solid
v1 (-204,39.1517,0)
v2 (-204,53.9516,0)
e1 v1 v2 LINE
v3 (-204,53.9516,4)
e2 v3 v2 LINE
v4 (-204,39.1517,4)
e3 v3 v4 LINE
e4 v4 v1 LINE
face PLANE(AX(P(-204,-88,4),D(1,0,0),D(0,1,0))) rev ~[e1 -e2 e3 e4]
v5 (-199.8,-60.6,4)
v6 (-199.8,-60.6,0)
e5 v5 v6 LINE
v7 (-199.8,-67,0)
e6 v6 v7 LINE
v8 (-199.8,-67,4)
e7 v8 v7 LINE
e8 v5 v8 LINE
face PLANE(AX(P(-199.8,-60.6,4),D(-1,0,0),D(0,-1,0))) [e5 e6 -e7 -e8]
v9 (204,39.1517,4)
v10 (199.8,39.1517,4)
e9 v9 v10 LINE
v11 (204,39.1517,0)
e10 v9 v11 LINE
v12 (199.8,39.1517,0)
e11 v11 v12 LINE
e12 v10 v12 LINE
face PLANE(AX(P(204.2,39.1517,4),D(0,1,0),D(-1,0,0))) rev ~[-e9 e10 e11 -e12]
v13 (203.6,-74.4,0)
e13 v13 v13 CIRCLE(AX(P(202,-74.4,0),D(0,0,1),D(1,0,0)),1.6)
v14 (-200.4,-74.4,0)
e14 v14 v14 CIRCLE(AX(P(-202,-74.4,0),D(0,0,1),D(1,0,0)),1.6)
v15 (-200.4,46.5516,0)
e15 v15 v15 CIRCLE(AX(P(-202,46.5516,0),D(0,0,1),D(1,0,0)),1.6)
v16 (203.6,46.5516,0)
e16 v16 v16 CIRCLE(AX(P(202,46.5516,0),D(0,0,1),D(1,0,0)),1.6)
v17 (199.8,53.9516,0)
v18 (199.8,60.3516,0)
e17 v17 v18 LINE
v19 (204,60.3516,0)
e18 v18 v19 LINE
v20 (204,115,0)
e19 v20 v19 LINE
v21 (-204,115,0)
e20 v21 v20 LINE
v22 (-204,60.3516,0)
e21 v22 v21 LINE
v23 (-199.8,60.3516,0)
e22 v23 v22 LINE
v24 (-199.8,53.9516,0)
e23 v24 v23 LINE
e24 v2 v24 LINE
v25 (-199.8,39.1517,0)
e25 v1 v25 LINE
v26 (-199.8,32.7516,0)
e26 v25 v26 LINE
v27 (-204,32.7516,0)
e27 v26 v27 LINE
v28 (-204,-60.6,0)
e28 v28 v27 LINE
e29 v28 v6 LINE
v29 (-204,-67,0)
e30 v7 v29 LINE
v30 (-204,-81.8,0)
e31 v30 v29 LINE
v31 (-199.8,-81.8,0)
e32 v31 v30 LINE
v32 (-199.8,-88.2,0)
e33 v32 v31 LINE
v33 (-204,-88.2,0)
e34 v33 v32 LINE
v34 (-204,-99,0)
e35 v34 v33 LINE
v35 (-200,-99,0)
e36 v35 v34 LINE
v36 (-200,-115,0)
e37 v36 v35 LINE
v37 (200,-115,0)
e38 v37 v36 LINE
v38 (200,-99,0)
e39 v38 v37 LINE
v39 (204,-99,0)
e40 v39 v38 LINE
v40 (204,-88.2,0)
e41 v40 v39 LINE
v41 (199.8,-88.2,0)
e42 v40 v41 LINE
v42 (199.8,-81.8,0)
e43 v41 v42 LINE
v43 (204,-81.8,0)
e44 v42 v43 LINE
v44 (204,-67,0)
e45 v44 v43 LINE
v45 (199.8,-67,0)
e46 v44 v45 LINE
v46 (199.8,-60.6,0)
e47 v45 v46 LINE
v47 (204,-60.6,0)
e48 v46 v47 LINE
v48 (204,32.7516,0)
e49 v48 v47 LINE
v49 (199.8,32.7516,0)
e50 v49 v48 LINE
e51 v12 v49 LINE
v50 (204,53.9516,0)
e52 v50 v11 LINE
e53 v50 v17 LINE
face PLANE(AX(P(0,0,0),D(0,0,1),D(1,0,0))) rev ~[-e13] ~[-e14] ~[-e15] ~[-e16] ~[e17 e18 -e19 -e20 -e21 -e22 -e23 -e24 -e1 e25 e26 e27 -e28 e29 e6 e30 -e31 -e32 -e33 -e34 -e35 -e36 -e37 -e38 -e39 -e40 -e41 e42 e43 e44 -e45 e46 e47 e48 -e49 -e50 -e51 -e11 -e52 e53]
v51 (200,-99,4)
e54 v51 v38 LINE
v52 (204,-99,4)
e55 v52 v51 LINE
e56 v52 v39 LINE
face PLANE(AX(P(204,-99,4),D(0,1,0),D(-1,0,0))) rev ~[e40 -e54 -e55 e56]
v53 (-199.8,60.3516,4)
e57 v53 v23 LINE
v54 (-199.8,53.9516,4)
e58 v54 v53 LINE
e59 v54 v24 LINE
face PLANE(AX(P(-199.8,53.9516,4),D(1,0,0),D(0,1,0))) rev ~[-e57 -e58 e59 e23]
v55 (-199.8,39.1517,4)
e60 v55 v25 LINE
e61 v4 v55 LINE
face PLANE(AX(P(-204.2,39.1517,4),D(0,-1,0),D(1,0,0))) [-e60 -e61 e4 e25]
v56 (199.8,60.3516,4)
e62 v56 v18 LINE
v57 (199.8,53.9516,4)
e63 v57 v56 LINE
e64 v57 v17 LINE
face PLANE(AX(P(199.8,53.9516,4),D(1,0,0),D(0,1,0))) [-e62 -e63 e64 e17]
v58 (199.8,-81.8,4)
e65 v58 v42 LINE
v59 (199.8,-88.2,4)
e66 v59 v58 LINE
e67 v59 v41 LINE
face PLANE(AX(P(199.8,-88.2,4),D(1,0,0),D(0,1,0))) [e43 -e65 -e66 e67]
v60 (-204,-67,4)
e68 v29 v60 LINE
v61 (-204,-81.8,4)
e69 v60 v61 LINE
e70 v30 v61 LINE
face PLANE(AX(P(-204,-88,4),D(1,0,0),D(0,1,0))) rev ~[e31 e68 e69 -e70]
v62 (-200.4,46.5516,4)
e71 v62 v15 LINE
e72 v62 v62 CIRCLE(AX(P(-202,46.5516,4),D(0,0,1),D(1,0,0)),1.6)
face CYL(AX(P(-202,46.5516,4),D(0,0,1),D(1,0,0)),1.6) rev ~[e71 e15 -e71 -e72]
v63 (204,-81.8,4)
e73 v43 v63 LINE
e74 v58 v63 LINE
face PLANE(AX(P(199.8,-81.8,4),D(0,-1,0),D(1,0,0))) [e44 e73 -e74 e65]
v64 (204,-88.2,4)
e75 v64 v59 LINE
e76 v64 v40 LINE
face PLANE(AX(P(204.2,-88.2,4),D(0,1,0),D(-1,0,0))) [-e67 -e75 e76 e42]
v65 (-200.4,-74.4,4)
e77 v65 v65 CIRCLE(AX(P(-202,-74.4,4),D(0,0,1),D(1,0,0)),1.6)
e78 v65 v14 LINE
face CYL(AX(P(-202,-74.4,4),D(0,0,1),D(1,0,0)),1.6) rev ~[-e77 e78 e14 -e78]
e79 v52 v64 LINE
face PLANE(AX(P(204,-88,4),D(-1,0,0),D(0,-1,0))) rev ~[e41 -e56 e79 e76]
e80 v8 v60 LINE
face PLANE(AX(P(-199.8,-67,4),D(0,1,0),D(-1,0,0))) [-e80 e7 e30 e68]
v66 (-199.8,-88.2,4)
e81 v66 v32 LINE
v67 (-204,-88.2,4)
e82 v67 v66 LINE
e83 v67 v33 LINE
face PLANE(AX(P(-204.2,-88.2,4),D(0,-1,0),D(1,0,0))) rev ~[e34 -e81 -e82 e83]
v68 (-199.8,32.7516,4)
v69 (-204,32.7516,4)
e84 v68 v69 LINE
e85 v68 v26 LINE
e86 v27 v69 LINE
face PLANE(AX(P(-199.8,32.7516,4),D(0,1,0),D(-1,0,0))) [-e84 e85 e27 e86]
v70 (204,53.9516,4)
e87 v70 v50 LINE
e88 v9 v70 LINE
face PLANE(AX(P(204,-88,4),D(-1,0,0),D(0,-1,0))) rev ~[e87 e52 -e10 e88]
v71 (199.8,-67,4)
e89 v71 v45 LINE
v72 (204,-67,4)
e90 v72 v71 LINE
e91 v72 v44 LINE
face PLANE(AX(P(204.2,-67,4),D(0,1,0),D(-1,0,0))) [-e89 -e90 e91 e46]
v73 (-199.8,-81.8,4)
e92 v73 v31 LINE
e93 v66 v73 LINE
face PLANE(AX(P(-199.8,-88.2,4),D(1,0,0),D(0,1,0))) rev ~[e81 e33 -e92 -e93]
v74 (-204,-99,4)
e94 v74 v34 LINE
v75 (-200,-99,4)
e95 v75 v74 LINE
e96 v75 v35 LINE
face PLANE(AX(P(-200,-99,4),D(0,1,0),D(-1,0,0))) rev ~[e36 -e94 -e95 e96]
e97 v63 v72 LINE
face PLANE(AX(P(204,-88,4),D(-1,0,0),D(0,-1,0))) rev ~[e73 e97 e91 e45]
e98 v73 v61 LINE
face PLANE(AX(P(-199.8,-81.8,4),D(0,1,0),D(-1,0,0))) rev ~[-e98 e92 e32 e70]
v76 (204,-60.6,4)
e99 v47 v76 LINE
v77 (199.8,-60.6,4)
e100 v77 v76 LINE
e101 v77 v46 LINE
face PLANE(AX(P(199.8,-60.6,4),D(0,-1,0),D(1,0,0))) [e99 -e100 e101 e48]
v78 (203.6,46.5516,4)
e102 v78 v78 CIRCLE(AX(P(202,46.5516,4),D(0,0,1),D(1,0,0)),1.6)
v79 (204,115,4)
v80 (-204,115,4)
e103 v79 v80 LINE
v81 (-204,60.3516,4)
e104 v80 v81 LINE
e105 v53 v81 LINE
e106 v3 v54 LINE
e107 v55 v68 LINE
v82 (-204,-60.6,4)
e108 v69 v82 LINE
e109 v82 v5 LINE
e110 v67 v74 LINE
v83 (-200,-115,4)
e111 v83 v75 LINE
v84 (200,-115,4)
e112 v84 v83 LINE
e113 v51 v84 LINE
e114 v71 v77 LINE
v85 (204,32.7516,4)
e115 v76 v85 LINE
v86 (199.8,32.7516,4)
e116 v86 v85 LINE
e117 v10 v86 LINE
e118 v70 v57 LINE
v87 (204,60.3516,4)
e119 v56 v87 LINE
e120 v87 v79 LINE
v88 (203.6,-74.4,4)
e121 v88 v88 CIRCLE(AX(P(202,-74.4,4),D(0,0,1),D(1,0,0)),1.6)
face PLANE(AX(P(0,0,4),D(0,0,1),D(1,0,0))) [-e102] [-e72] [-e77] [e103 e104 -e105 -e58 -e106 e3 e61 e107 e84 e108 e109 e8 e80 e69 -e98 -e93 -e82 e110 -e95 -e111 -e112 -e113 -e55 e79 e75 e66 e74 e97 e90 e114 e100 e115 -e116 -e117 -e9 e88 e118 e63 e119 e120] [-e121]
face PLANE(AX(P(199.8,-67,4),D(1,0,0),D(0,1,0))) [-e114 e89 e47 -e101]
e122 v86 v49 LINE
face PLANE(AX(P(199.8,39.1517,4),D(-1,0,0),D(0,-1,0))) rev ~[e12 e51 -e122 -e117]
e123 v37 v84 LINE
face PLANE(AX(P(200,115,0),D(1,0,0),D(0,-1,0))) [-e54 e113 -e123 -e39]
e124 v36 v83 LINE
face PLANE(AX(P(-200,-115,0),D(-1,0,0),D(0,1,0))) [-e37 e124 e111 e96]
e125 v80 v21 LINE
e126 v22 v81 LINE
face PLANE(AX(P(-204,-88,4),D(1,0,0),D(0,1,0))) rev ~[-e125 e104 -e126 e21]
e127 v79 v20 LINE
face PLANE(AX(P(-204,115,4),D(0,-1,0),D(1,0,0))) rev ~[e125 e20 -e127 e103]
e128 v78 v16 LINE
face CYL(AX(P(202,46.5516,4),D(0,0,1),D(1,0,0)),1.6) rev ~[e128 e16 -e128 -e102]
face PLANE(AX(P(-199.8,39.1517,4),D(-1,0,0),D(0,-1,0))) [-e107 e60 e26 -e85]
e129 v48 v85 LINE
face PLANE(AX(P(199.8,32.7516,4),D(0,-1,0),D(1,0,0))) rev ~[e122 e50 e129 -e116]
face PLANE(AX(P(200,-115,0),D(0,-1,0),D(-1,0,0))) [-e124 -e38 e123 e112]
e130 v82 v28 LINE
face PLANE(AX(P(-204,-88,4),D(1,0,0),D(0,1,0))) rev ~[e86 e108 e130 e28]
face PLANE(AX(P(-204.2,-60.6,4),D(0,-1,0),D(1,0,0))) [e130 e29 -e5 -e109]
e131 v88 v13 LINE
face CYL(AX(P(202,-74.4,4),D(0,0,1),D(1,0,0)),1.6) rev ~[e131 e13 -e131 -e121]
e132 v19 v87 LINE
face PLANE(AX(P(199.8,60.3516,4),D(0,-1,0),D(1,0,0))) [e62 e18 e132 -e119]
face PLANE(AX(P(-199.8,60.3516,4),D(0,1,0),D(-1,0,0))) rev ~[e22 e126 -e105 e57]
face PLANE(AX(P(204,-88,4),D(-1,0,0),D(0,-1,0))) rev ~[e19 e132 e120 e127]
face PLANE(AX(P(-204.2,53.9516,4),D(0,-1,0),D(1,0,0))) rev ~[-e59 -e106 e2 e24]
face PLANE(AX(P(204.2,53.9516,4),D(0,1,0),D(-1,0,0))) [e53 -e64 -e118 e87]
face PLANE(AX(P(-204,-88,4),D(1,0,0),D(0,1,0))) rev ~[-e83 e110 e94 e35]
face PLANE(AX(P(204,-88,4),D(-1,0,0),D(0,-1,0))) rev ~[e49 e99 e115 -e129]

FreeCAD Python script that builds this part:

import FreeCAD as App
import Part
import Sketcher
from FreeCAD import Vector

doc = App.newDocument("Part")
params = doc.addObject("Spreadsheet::Sheet", "Params")
for row, (alias, value) in enumerate([
    ("sketch1_width", "400 mm"),
    ("sketch1_height", "230 mm"),
    ("pad1_length", "4 mm"),
    ("sketch2_width", "4 mm"),
    ("sketch2_width2", "408 mm"),
    ("sketch2_height", "11 mm"),
    ("sketch2_height2", "214 mm"),
    ("pad2_length", "4 mm"),
    ("sketch3_diameter", "3.2 mm"),
    ("sketch3_width", "4.4 mm"),
    ("sketch3_height", "6.4 mm"),
    ("pocket1_length", "10 mm"),
], start=1):
    params.set(f"A{row}", alias)
    params.set(f"B{row}", "=" + value)
    params.setAlias(f"B{row}", alias)

body = doc.addObject("PartDesign::Body", "Body")

# Sketch on XY plane
sketch1 = body.newObject("Sketcher::SketchObject", "Sketch")
sketch1.AttachmentSupport = (doc.getObject("XY_Plane"), [""])
sketch1.MapMode = "FlatFace"
sketch1.addGeometry(Part.LineSegment(Vector(-200, -115, 0), Vector(200, -115, 0)), False)
sketch1.addGeometry(Part.LineSegment(Vector(200, -115, 0), Vector(200, 115, 0)), False)
sketch1.addGeometry(Part.LineSegment(Vector(200, 115, 0), Vector(-200, 115, 0)), False)
sketch1.addGeometry(Part.LineSegment(Vector(-200, 115, 0), Vector(-200, -115, 0)), False)
sketch1.addConstraint(Sketcher.Constraint("Coincident", 0, 2, 1, 1))
sketch1.addConstraint(Sketcher.Constraint("Coincident", 1, 2, 2, 1))
sketch1.addConstraint(Sketcher.Constraint("Coincident", 2, 2, 3, 1))
sketch1.addConstraint(Sketcher.Constraint("Coincident", 3, 2, 0, 1))
sketch1.addConstraint(Sketcher.Constraint("Horizontal", 0))
sketch1.addConstraint(Sketcher.Constraint("Vertical", 1))
sketch1.addConstraint(Sketcher.Constraint("Horizontal", 2))
sketch1.addConstraint(Sketcher.Constraint("Vertical", 3))
sketch1.addConstraint(Sketcher.Constraint("Symmetric", 0, 2, 2, 2, -1, 1))
sketch1.addConstraint(Sketcher.Constraint("DistanceX", 0, 1, 0, 2, 400.0))
sketch1.addConstraint(Sketcher.Constraint("DistanceY", 1, 1, 1, 2, 230.0))
sketch1.setExpression("Constraints[9]", "Params.sketch1_width")
sketch1.setExpression("Constraints[10]", "Params.sketch1_height")
pad1 = body.newObject("PartDesign::Pad", "Pad")
pad1.Profile = sketch1
pad1.setExpression("Length", "Params.pad1_length")

# Sketch on XY plane
sketch2 = body.newObject("Sketcher::SketchObject", "Sketch001")
sketch2.AttachmentSupport = (doc.getObject("XY_Plane"), [""])
sketch2.MapMode = "FlatFace"
sketch2.AttachmentOffset = App.Placement(Vector(0, 0, 4), App.Rotation())
sketch2.addGeometry(Part.LineSegment(Vector(200, -88, 0), Vector(200, -99, 0)), False)
sketch2.addGeometry(Part.LineSegment(Vector(200, -99, 0), Vector(204, -99, 0)), False)
sketch2.addGeometry(Part.LineSegment(Vector(204, -99, 0), Vector(204, 115, 0)), False)
sketch2.addGeometry(Part.LineSegment(Vector(204, 115, 0), Vector(-204, 115, 0)), False)
sketch2.addGeometry(Part.LineSegment(Vector(-204, 115, 0), Vector(-204, -99, 0)), False)
sketch2.addGeometry(Part.LineSegment(Vector(-204, -99, 0), Vector(-200, -99, 0)), False)
sketch2.addGeometry(Part.LineSegment(Vector(-200, -99, 0), Vector(-200, -88, 0)), False)
sketch2.addGeometry(Part.LineSegment(Vector(-200, -88, 0), Vector(200, -88, 0)), False)
sketch2.addConstraint(Sketcher.Constraint("Coincident", 0, 2, 1, 1))
sketch2.addConstraint(Sketcher.Constraint("Coincident", 1, 2, 2, 1))
sketch2.addConstraint(Sketcher.Constraint("Coincident", 2, 2, 3, 1))
sketch2.addConstraint(Sketcher.Constraint("Coincident", 3, 2, 4, 1))
sketch2.addConstraint(Sketcher.Constraint("Coincident", 4, 2, 5, 1))
sketch2.addConstraint(Sketcher.Constraint("Coincident", 5, 2, 6, 1))
sketch2.addConstraint(Sketcher.Constraint("Coincident", 6, 2, 7, 1))
sketch2.addConstraint(Sketcher.Constraint("Coincident", 7, 2, 0, 1))
sketch2.addConstraint(Sketcher.Constraint("Vertical", 0))
sketch2.addConstraint(Sketcher.Constraint("Horizontal", 1))
sketch2.addConstraint(Sketcher.Constraint("Vertical", 2))
sketch2.addConstraint(Sketcher.Constraint("Horizontal", 3))
sketch2.addConstraint(Sketcher.Constraint("Vertical", 4))
sketch2.addConstraint(Sketcher.Constraint("Horizontal", 5))
sketch2.addConstraint(Sketcher.Constraint("Vertical", 6))
sketch2.addConstraint(Sketcher.Constraint("Horizontal", 7))
sketch2.addConstraint(Sketcher.Constraint("Symmetric", 1, 2, 4, 2, -2))
sketch2.addConstraint(Sketcher.Constraint("Equal", 1, 5))
sketch2.addConstraint(Sketcher.Constraint("DistanceX", 1, 1, 1, 2, 4.0))
sketch2.addConstraint(Sketcher.Constraint("DistanceX", 3, 2, 3, 1, 408.0))
sketch2.addConstraint(Sketcher.Constraint("DistanceY", 0, 2, 0, 1, 11.0))
sketch2.addConstraint(Sketcher.Constraint("DistanceY", 2, 1, 2, 2, 214.0))
sketch2.addConstraint(Sketcher.Constraint("DistanceY", 0, 2, -1, 1, 99.0))
sketch2.setExpression("Constraints[18]", "Params.sketch2_width")
sketch2.setExpression("Constraints[19]", "Params.sketch2_width2")
sketch2.setExpression("Constraints[20]", "Params.sketch2_height")
sketch2.setExpression("Constraints[21]", "Params.sketch2_height2")
pad2 = body.newObject("PartDesign::Pad", "Pad001")
pad2.Profile = sketch2
pad2.setExpression("Length", "Params.pad2_length")
pad2.Reversed = True

# Sketch on XY plane
sketch3 = body.newObject("Sketcher::SketchObject", "Sketch002")
sketch3.AttachmentSupport = (doc.getObject("XY_Plane"), [""])
sketch3.MapMode = "FlatFace"
sketch3.AttachmentOffset = App.Placement(Vector(0, 0, 4), App.Rotation())
sketch3.addGeometry(Part.Circle(Vector(202, -74.4, 0), Vector(0, 0, 1), 1.6), False)
sketch3.addGeometry(Part.Circle(Vector(-202, -74.4, 0), Vector(0, 0, 1), 1.6), False)
sketch3.addGeometry(Part.Circle(Vector(-202, 46.5516, 0), Vector(0, 0, 1), 1.6), False)
sketch3.addGeometry(Part.Circle(Vector(202, 46.5516, 0), Vector(0, 0, 1), 1.6), False)
sketch3.addGeometry(Part.LineSegment(Vector(199.8, -81.8, 0), Vector(199.8, -88.2, 0)), False)
sketch3.addGeometry(Part.LineSegment(Vector(199.8, -88.2, 0), Vector(204.2, -88.2, 0)), False)
sketch3.addGeometry(Part.LineSegment(Vector(204.2, -88.2, 0), Vector(204.2, -81.8, 0)), False)
sketch3.addGeometry(Part.LineSegment(Vector(204.2, -81.8, 0), Vector(199.8, -81.8, 0)), False)
sketch3.addGeometry(Part.LineSegment(Vector(199.8, -60.6, 0), Vector(199.8, -67, 0)), False)
sketch3.addGeometry(Part.LineSegment(Vector(199.8, -67, 0), Vector(204.2, -67, 0)), False)
sketch3.addGeometry(Part.LineSegment(Vector(204.2, -67, 0), Vector(204.2, -60.6, 0)), False)
sketch3.addGeometry(Part.LineSegment(Vector(204.2, -60.6, 0), Vector(199.8, -60.6, 0)), False)
sketch3.addGeometry(Part.LineSegment(Vector(204.2, 39.1517, 0), Vector(199.8, 39.1517, 0)), False)
sketch3.addGeometry(Part.LineSegment(Vector(199.8, 39.1517, 0), Vector(199.8, 32.7516, 0)), False)
sketch3.addGeometry(Part.LineSegment(Vector(199.8, 32.7516, 0), Vector(204.2, 32.7516, 0)), False)
sketch3.addGeometry(Part.LineSegment(Vector(204.2, 32.7516, 0), Vector(204.2, 39.1517, 0)), False)
sketch3.addGeometry(Part.LineSegment(Vector(199.8, 60.3516, 0), Vector(199.8, 53.9516, 0)), False)
sketch3.addGeometry(Part.LineSegment(Vector(199.8, 53.9516, 0), Vector(204.2, 53.9516, 0)), False)
sketch3.addGeometry(Part.LineSegment(Vector(204.2, 53.9516, 0), Vector(204.2, 60.3516, 0)), False)
sketch3.addGeometry(Part.LineSegment(Vector(204.2, 60.3516, 0), Vector(199.8, 60.3516, 0)), False)
sketch3.addGeometry(Part.LineSegment(Vector(-199.8, -81.8, 0), Vector(-204.2, -81.8, 0)), False)
sketch3.addGeometry(Part.LineSegment(Vector(-204.2, -81.8, 0), Vector(-204.2, -88.2, 0)), False)
sketch3.addGeometry(Part.LineSegment(Vector(-204.2, -88.2, 0), Vector(-199.8, -88.2, 0)), False)
sketch3.addGeometry(Part.LineSegment(Vector(-199.8, -88.2, 0), Vector(-199.8, -81.8, 0)), False)
sketch3.addGeometry(Part.LineSegment(Vector(-204.2, -60.6, 0), Vector(-204.2, -67, 0)), False)
sketch3.addGeometry(Part.LineSegment(Vector(-204.2, -67, 0), Vector(-199.8, -67, 0)), False)
sketch3.addGeometry(Part.LineSegment(Vector(-199.8, -67, 0), Vector(-199.8, -60.6, 0)), False)
sketch3.addGeometry(Part.LineSegment(Vector(-199.8, -60.6, 0), Vector(-204.2, -60.6, 0)), False)
sketch3.addGeometry(Part.LineSegment(Vector(-204.2, 39.1517, 0), Vector(-204.2, 32.7516, 0)), False)
sketch3.addGeometry(Part.LineSegment(Vector(-204.2, 32.7516, 0), Vector(-199.8, 32.7516, 0)), False)
sketch3.addGeometry(Part.LineSegment(Vector(-199.8, 32.7516, 0), Vector(-199.8, 39.1517, 0)), False)
sketch3.addGeometry(Part.LineSegment(Vector(-199.8, 39.1517, 0), Vector(-204.2, 39.1517, 0)), False)
sketch3.addGeometry(Part.LineSegment(Vector(-199.8, 60.3516, 0), Vector(-204.2, 60.3516, 0)), False)
sketch3.addGeometry(Part.LineSegment(Vector(-204.2, 60.3516, 0), Vector(-204.2, 53.9516, 0)), False)
sketch3.addGeometry(Part.LineSegment(Vector(-204.2, 53.9516, 0), Vector(-199.8, 53.9516, 0)), False)
sketch3.addGeometry(Part.LineSegment(Vector(-199.8, 53.9516, 0), Vector(-199.8, 60.3516, 0)), False)
sketch3.addConstraint(Sketcher.Constraint("Coincident", 4, 2, 5, 1))
sketch3.addConstraint(Sketcher.Constraint("Coincident", 5, 2, 6, 1))
sketch3.addConstraint(Sketcher.Constraint("Coincident", 6, 2, 7, 1))
sketch3.addConstraint(Sketcher.Constraint("Coincident", 7, 2, 4, 1))
sketch3.addConstraint(Sketcher.Constraint("Coincident", 8, 2, 9, 1))
sketch3.addConstraint(Sketcher.Constraint("Coincident", 9, 2, 10, 1))
sketch3.addConstraint(Sketcher.Constraint("Coincident", 10, 2, 11, 1))
sketch3.addConstraint(Sketcher.Constraint("Coincident", 11, 2, 8, 1))
sketch3.addConstraint(Sketcher.Constraint("Coincident", 12, 2, 13, 1))
sketch3.addConstraint(Sketcher.Constraint("Coincident", 13, 2, 14, 1))
sketch3.addConstraint(Sketcher.Constraint("Coincident", 14, 2, 15, 1))
sketch3.addConstraint(Sketcher.Constraint("Coincident", 15, 2, 12, 1))
sketch3.addConstraint(Sketcher.Constraint("Coincident", 16, 2, 17, 1))
sketch3.addConstraint(Sketcher.Constraint("Coincident", 17, 2, 18, 1))
sketch3.addConstraint(Sketcher.Constraint("Coincident", 18, 2, 19, 1))
sketch3.addConstraint(Sketcher.Constraint("Coincident", 19, 2, 16, 1))
sketch3.addConstraint(Sketcher.Constraint("Coincident", 20, 2, 21, 1))
sketch3.addConstraint(Sketcher.Constraint("Coincident", 21, 2, 22, 1))
sketch3.addConstraint(Sketcher.Constraint("Coincident", 22, 2, 23, 1))
sketch3.addConstraint(Sketcher.Constraint("Coincident", 23, 2, 20, 1))
sketch3.addConstraint(Sketcher.Constraint("Coincident", 24, 2, 25, 1))
sketch3.addConstraint(Sketcher.Constraint("Coincident", 25, 2, 26, 1))
sketch3.addConstraint(Sketcher.Constraint("Coincident", 26, 2, 27, 1))
sketch3.addConstraint(Sketcher.Constraint("Coincident", 27, 2, 24, 1))
sketch3.addConstraint(Sketcher.Constraint("Coincident", 28, 2, 29, 1))
sketch3.addConstraint(Sketcher.Constraint("Coincident", 29, 2, 30, 1))
sketch3.addConstraint(Sketcher.Constraint("Coincident", 30, 2, 31, 1))
sketch3.addConstraint(Sketcher.Constraint("Coincident", 31, 2, 28, 1))
sketch3.addConstraint(Sketcher.Constraint("Coincident", 32, 2, 33, 1))
sketch3.addConstraint(Sketcher.Constraint("Coincident", 33, 2, 34, 1))
sketch3.addConstraint(Sketcher.Constraint("Coincident", 34, 2, 35, 1))
sketch3.addConstraint(Sketcher.Constraint("Coincident", 35, 2, 32, 1))
sketch3.addConstraint(Sketcher.Constraint("Vertical", 4))
sketch3.addConstraint(Sketcher.Constraint("Horizontal", 5))
sketch3.addConstraint(Sketcher.Constraint("Vertical", 6))
sketch3.addConstraint(Sketcher.Constraint("Horizontal", 7))
sketch3.addConstraint(Sketcher.Constraint("Vertical", 8))
sketch3.addConstraint(Sketcher.Constraint("Horizontal", 9))
sketch3.addConstraint(Sketcher.Constraint("Vertical", 10))
sketch3.addConstraint(Sketcher.Constraint("Horizontal", 11))
sketch3.addConstraint(Sketcher.Constraint("Horizontal", 12))
sketch3.addConstraint(Sketcher.Constraint("Vertical", 13))
sketch3.addConstraint(Sketcher.Constraint("Horizontal", 14))
sketch3.addConstraint(Sketcher.Constraint("Vertical", 15))
sketch3.addConstraint(Sketcher.Constraint("Vertical", 16))
sketch3.addConstraint(Sketcher.Constraint("Horizontal", 17))
sketch3.addConstraint(Sketcher.Constraint("Vertical", 18))
sketch3.addConstraint(Sketcher.Constraint("Horizontal", 19))
sketch3.addConstraint(Sketcher.Constraint("Horizontal", 20))
sketch3.addConstraint(Sketcher.Constraint("Vertical", 21))
sketch3.addConstraint(Sketcher.Constraint("Horizontal", 22))
sketch3.addConstraint(Sketcher.Constraint("Vertical", 23))
sketch3.addConstraint(Sketcher.Constraint("Vertical", 24))
sketch3.addConstraint(Sketcher.Constraint("Horizontal", 25))
sketch3.addConstraint(Sketcher.Constraint("Vertical", 26))
sketch3.addConstraint(Sketcher.Constraint("Horizontal", 27))
sketch3.addConstraint(Sketcher.Constraint("Vertical", 28))
sketch3.addConstraint(Sketcher.Constraint("Horizontal", 29))
sketch3.addConstraint(Sketcher.Constraint("Vertical", 30))
sketch3.addConstraint(Sketcher.Constraint("Horizontal", 31))
sketch3.addConstraint(Sketcher.Constraint("Horizontal", 32))
sketch3.addConstraint(Sketcher.Constraint("Vertical", 33))
sketch3.addConstraint(Sketcher.Constraint("Horizontal", 34))
sketch3.addConstraint(Sketcher.Constraint("Vertical", 35))
sketch3.addConstraint(Sketcher.Constraint("Equal", 0, 1))
sketch3.addConstraint(Sketcher.Constraint("Equal", 1, 2))
sketch3.addConstraint(Sketcher.Constraint("Equal", 2, 3))
sketch3.addConstraint(Sketcher.Constraint("Symmetric", 0, 3, 1, 3, -2))
sketch3.addConstraint(Sketcher.Constraint("Symmetric", 2, 3, 3, 3, -2))
sketch3.addConstraint(Sketcher.Constraint("Symmetric", 6, 2, 20, 2, -2))
sketch3.addConstraint(Sketcher.Constraint("Symmetric", 4, 2, 22, 2, -2))
sketch3.addConstraint(Sketcher.Constraint("Symmetric", 9, 2, 24, 2, -2))
sketch3.addConstraint(Sketcher.Constraint("Symmetric", 11, 2, 26, 2, -2))
sketch3.addConstraint(Sketcher.Constraint("Symmetric", 14, 2, 28, 2, -2))
sketch3.addConstraint(Sketcher.Constraint("Symmetric", 12, 2, 30, 2, -2))
sketch3.addConstraint(Sketcher.Constraint("Symmetric", 18, 2, 32, 2, -2))
sketch3.addConstraint(Sketcher.Constraint("Symmetric", 16, 2, 34, 2, -2))
sketch3.addConstraint(Sketcher.Constraint("Vertical", 1, 3, 2, 3))
sketch3.addConstraint(Sketcher.Constraint("Vertical", 7, 2, 8, 2))
sketch3.addConstraint(Sketcher.Constraint("Vertical", 6, 2, 9, 2))
sketch3.addConstraint(Sketcher.Constraint("Vertical", 11, 2, 12, 2))
sketch3.addConstraint(Sketcher.Constraint("Vertical", 10, 2, 14, 2))
sketch3.addConstraint(Sketcher.Constraint("Vertical", 13, 2, 16, 2))
sketch3.addConstraint(Sketcher.Constraint("Vertical", 15, 2, 17, 2))
sketch3.addConstraint(Sketcher.Constraint("Equal", 6, 8))
sketch3.addConstraint(Sketcher.Constraint("Equal", 10, 13))
sketch3.addConstraint(Sketcher.Constraint("Equal", 15, 16))
sketch3.addConstraint(Sketcher.Constraint("Diameter", 0, 3.2))
sketch3.addConstraint(Sketcher.Constraint("DistanceX", 5, 1, 5, 2, 4.4))
sketch3.addConstraint(Sketcher.Constraint("DistanceY", 4, 2, 4, 1, 6.4))
sketch3.addConstraint(Sketcher.Constraint("DistanceX", -1, 1, 0, 3, 202.0))
sketch3.addConstraint(Sketcher.Constraint("DistanceY", 8, 2, -1, 1, 67.0))
sketch3.addConstraint(Sketcher.Constraint("DistanceX", 20, 2, 7, 2, 404.0))
sketch3.addConstraint(Sketcher.Constraint("DistanceY", 0, 3, -1, 1, 74.4))
sketch3.addConstraint(Sketcher.Constraint("DistanceY", 4, 2, -1, 1, 88.2))
sketch3.addConstraint(Sketcher.Constraint("DistanceY", 12, 2, 3, 3, 7.4))
sketch3.addConstraint(Sketcher.Constraint("DistanceY", 3, 3, 16, 2, 7.4))
sketch3.addConstraint(Sketcher.Constraint("DistanceY", -1, 1, 2, 3, 46.5516))
sketch3.setExpression("Constraints[87]", "Params.sketch3_diameter")
sketch3.setExpression("Constraints[88]", "Params.sketch3_width")
sketch3.setExpression("Constraints[89]", "Params.sketch3_height")
pocket1 = body.newObject("PartDesign::Pocket", "Pocket")
pocket1.Profile = sketch3
pocket1.setExpression("Length", "Params.pocket1_length")

doc.recompute()
